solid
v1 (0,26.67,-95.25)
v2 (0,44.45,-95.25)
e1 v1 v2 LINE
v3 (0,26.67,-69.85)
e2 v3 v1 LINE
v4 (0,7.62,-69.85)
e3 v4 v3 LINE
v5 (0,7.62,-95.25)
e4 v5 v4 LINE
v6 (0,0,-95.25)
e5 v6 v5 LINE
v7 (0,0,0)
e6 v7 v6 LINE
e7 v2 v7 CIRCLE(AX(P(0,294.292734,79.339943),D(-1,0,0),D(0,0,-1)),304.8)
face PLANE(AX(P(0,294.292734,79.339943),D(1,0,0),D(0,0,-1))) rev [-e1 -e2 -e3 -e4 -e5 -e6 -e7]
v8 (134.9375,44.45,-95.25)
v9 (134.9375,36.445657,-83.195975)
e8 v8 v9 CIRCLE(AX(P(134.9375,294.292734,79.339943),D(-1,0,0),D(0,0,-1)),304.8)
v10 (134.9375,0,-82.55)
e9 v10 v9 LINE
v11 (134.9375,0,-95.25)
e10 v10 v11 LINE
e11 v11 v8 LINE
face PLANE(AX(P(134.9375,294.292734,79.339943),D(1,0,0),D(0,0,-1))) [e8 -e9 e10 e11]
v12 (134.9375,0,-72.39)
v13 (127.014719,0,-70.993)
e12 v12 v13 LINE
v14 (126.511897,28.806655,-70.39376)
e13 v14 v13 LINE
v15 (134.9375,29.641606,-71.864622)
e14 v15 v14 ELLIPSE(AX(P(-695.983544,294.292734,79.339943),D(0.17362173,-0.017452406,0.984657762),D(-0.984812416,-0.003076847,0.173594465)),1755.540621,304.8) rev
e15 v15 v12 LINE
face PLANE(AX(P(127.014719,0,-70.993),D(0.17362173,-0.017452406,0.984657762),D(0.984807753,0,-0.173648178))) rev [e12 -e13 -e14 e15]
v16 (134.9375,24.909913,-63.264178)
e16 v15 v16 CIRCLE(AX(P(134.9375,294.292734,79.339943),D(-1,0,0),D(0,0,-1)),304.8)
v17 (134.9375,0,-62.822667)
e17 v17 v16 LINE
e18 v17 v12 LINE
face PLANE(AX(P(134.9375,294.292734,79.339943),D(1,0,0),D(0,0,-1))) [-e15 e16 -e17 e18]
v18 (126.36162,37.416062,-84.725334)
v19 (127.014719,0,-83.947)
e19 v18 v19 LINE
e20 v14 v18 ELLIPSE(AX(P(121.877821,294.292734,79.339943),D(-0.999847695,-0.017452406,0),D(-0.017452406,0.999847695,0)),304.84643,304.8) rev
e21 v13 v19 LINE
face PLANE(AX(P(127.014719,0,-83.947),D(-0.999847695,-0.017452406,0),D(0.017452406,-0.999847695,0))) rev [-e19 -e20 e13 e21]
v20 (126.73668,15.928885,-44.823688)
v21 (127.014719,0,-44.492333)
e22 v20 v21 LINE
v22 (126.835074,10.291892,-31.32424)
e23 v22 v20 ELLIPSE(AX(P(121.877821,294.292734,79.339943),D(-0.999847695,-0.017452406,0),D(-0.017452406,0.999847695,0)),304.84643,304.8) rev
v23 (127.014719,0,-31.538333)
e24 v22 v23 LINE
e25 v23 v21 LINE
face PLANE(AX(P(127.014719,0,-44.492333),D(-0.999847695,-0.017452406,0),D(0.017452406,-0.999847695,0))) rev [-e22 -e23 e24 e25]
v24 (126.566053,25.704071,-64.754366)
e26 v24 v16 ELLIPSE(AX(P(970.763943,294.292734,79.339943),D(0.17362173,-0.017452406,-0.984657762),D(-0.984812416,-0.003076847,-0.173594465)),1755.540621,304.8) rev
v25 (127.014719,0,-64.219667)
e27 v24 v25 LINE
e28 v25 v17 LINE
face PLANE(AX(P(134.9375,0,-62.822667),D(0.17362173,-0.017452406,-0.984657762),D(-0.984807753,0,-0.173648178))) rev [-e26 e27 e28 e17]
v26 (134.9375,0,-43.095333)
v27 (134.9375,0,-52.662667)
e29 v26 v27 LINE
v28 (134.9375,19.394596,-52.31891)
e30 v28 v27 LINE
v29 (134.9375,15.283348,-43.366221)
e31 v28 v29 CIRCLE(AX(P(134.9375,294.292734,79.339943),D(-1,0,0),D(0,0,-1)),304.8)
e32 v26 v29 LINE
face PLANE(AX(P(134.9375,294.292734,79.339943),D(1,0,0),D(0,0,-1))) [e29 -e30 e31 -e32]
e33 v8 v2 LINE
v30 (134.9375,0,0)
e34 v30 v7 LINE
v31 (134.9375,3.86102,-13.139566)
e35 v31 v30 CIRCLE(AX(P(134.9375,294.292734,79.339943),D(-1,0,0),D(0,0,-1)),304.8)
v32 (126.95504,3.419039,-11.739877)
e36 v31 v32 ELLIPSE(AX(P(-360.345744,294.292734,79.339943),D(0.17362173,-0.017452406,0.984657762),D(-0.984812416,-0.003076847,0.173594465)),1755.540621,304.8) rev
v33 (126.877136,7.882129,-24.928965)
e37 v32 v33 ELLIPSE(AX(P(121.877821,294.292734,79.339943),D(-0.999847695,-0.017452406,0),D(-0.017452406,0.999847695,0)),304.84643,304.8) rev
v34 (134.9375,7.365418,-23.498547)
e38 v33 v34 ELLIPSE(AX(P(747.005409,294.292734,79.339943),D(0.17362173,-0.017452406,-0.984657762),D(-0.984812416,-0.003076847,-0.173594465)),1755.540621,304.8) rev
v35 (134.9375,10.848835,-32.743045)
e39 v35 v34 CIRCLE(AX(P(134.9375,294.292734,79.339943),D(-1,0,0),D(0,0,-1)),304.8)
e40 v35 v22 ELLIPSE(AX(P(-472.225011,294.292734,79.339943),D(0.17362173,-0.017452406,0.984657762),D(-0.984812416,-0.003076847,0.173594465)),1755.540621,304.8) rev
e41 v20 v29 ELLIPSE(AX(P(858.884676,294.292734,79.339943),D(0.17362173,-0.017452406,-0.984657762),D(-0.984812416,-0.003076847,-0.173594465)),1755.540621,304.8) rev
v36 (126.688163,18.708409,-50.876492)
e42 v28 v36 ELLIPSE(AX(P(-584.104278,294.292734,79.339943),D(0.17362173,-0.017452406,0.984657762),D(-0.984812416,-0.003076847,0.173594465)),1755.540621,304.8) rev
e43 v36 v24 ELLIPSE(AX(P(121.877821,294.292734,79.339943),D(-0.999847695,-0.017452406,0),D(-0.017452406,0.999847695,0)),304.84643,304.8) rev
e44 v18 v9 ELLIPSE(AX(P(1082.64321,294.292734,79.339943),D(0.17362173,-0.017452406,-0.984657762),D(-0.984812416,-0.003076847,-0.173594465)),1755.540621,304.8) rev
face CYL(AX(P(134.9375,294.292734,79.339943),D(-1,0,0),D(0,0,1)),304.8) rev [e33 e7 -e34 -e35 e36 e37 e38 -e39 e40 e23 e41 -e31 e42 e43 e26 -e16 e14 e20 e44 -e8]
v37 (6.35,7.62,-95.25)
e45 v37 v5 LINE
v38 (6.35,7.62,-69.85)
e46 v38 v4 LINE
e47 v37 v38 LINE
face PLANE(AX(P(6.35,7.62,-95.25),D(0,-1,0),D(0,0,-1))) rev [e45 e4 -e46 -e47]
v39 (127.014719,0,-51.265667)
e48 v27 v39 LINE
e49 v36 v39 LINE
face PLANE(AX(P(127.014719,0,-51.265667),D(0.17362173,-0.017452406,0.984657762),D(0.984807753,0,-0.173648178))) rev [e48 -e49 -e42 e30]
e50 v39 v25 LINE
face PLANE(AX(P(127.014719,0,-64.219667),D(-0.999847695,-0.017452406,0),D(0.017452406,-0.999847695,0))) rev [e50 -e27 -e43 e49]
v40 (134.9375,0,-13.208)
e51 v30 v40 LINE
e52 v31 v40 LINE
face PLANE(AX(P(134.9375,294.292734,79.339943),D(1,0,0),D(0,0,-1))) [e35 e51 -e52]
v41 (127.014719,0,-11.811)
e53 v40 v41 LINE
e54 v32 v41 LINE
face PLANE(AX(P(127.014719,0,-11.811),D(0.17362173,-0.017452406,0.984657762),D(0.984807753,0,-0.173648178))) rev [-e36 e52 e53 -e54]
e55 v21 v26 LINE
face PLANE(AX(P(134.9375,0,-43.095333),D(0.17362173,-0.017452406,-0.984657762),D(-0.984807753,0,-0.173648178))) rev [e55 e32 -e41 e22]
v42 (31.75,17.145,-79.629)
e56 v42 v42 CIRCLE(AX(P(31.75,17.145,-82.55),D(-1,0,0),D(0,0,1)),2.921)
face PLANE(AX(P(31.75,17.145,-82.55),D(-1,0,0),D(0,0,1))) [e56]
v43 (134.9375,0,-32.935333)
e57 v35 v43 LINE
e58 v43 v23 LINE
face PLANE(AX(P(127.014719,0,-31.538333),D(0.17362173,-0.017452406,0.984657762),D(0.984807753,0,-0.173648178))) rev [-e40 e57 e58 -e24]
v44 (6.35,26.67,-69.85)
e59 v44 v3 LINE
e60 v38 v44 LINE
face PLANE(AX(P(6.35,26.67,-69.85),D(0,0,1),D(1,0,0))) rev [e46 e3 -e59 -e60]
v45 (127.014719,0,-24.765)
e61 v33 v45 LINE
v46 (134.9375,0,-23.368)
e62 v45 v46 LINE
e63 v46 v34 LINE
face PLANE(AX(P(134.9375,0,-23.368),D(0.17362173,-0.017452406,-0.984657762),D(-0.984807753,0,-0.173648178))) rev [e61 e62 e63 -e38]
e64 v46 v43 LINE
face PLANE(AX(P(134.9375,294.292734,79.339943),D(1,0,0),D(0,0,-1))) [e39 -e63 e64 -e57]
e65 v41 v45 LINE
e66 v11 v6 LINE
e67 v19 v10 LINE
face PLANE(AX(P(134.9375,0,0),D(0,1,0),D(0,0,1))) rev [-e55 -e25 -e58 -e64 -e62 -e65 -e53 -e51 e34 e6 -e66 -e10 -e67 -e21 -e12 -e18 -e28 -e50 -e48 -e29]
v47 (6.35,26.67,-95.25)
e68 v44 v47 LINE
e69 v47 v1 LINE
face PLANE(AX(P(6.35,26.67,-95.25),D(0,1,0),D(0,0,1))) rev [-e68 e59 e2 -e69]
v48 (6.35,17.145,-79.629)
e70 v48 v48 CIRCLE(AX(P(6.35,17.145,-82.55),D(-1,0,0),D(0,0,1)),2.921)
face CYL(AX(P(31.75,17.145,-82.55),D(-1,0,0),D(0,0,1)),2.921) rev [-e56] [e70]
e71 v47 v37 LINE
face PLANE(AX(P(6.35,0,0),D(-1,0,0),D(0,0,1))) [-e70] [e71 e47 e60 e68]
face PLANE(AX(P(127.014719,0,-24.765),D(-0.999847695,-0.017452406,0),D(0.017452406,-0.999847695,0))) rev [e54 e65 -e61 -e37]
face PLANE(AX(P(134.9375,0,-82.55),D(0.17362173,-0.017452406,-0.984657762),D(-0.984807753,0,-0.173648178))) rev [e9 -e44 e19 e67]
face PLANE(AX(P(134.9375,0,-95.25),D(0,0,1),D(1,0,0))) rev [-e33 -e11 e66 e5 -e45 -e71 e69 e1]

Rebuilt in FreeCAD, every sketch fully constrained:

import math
import FreeCAD as App
import Part
import Sketcher

V = App.Vector
Q = App.Units.Quantity


def add_polygon(sketch, points):
    """Adds a closed chain of lines whose ends are joined by coincident constraints."""
    first, n = sketch.GeometryCount, len(points)
    for a, b in zip(points, points[1:] + points[:1]):
        sketch.addGeometry(Part.LineSegment(App.Vector(*a, 0), App.Vector(*b, 0)), False)
    for i in range(n):
        sketch.addConstraint(Sketcher.Constraint("Coincident", first + i, 2, first + (i + 1) % n, 1))

doc = App.newDocument("Part")
body = doc.addObject("PartDesign::Body", "Body")

sketch1 = body.newObject("Sketcher::SketchObject", "Sketch")
sketch1.AttachmentSupport = (doc.getObject("YZ_Plane"), [""])
sketch1.MapMode = "FlatFace"
sketch1.addGeometry([
    Part.LineSegment(V(0, 0, 0), V(0, -95.25, 0)),
    Part.LineSegment(V(0, -95.25, 0), V(44.45, -95.25, 0)),
    Part.ArcOfCircle(Part.Circle(V(294.292734, 79.339943, 0), V(0, 0, 1), 304.8), math.radians(-164.912038), math.radians(-145.054175)),
], False)
sketch1.addConstraint([
    Sketcher.Constraint("Coincident", 0, 2, 1, 1),
    Sketcher.Constraint("Coincident", 1, 2, 2, 2),
    Sketcher.Constraint("Coincident", 2, 1, 0, 1),
    Sketcher.Constraint("Vertical", 0),
    Sketcher.Constraint("Horizontal", 1),
    Sketcher.Constraint("Coincident", 2, 1, -1, 1),
    Sketcher.Constraint("Radius", 2, Q("12 in")),
    Sketcher.Constraint("DistanceX", 1, 1, 1, 2, Q("1.75 in")),
    Sketcher.Constraint("DistanceY", 0, 2, 0, 1, Q("3.75 in")),
])
pad1 = body.newObject("PartDesign::Pad", "Pad")
pad1.Profile = sketch1
pad1.Length = Q("5.3125 in")

sketch2 = body.newObject("Sketcher::SketchObject", "Sketch001")
sketch2.AttachmentSupport = (doc.getObject("YZ_Plane"), [""])
sketch2.MapMode = "FlatFace"
add_polygon(sketch2, [(26.67, -95.25), (7.62, -95.25), (7.62, -69.85), (26.67, -69.85)])
sketch2.addConstraint([
    Sketcher.Constraint("Horizontal", 0),
    Sketcher.Constraint("Vertical", 1),
    Sketcher.Constraint("Horizontal", 2),
    Sketcher.Constraint("Vertical", 3),
    Sketcher.Constraint("DistanceY", 1, 1, 1, 2, Q("1 in")),
    Sketcher.Constraint("DistanceX", 0, 2, 0, 1, Q("0.75 in")),
    Sketcher.Constraint("DistanceX", -1, 1, 0, 2, Q("0.3 in")),
    Sketcher.Constraint("DistanceY", 0, 2, -1, 1, Q("3.75 in")),
])
pocket1 = body.newObject("PartDesign::Pocket", "Pocket")
pocket1.Profile = sketch2
pocket1.Length = Q("0.25 in")
pocket1.Reversed = True

sketch3 = body.newObject("Sketcher::SketchObject", "Sketch002")
sketch3.AttachmentSupport = (doc.getObject("YZ_Plane"), [""])
sketch3.MapMode = "FlatFace"
sketch3.AttachmentOffset = App.Placement(V(0, 0, 0.25 * 25.4), App.Rotation())
sketch3.addGeometry(Part.Circle(V(17.145, -82.55, 0), V(0, 0, 1), 2.921), False)
sketch3.addConstraint([
    Sketcher.Constraint("Diameter", 0, Q("0.23 in")),
    Sketcher.Constraint("DistanceY", 0, 3, -1, 1, Q("3.25 in")),
    Sketcher.Constraint("DistanceX", -1, 1, 0, 3, Q("0.675 in")),
])
pocket2 = body.newObject("PartDesign::Pocket", "Pocket001")
pocket2.Profile = sketch3
pocket2.Length = Q("1 in")
pocket2.Reversed = True

sketch4 = body.newObject("Sketcher::SketchObject", "Sketch003")
sketch4.AttachmentSupport = (doc.getObject("XZ_Plane"), [""])
sketch4.MapMode = "FlatFace"
add_polygon(sketch4, [(134.9375, -82.55), (134.9375, -72.39), (127.014719, -70.993), (127.014719, -83.947)])
add_polygon(sketch4, [(134.9375, -62.822667), (134.9375, -52.662667), (127.014719, -51.265667), (127.014719, -64.219667)])
add_polygon(sketch4, [(134.9375, -43.095333), (134.9375, -32.935333), (127.014719, -31.538333), (127.014719, -44.492333)])
add_polygon(sketch4, [(134.9375, -23.368), (134.9375, -13.208), (127.014719, -11.811), (127.014719, -24.765)])
sketch4.addConstraint([
    Sketcher.Constraint("Vertical", 0),
    Sketcher.Constraint("Vertical", 2),
    Sketcher.Constraint("Vertical", 4),
    Sketcher.Constraint("Vertical", 6),
    Sketcher.Constraint("Vertical", 8),
    Sketcher.Constraint("Vertical", 10),
    Sketcher.Constraint("Vertical", 12),
    Sketcher.Constraint("Vertical", 14),
    Sketcher.Constraint("Parallel", 1, 5),
    Sketcher.Constraint("Parallel", 3, 7),
    Sketcher.Constraint("Parallel", 5, 9),
    Sketcher.Constraint("Parallel", 7, 11),
    Sketcher.Constraint("Parallel", 9, 13),
    Sketcher.Constraint("Parallel", 11, 15),
    Sketcher.Constraint("Vertical", 3, 2, 4, 2),
    Sketcher.Constraint("Vertical", 2, 2, 5, 2),
    Sketcher.Constraint("Vertical", 7, 2, 8, 2),
    Sketcher.Constraint("Vertical", 6, 2, 9, 2),
    Sketcher.Constraint("Vertical", 11, 2, 12, 2),
    Sketcher.Constraint("Vertical", 10, 2, 13, 2),
    Sketcher.Constraint("Equal", 0, 4),
    Sketcher.Constraint("Equal", 4, 8),
    Sketcher.Constraint("Equal", 8, 12),
    Sketcher.Constraint("Equal", 1, 3),
    Sketcher.Constraint("DistanceY", 0, 1, 0, 2, Q("0.4 in")),
    Sketcher.Constraint("Angle", 1, Q("170 deg")),
    Sketcher.Constraint("DistanceY", 2, 2, 2, 1, Q("0.51 in")),
    Sketcher.Constraint("DistanceY", 0, 2, -1, 1, Q("2.85 in")),
    Sketcher.Constraint("DistanceY", 12, 2, -1, 1, Q("0.52 in")),
    Sketcher.Constraint("DistanceX", -1, 1, 0, 2, Q("5.3125 in")),
    Sketcher.Constraint("DistanceY", 4, 2, -1, 1, 52.662667),
    Sketcher.Constraint("DistanceY", 8, 2, -1, 1, 32.935333),
])
pocket3 = body.newObject("PartDesign::Pocket", "Pocket002")
pocket3.Profile = sketch4
pocket3.Length = Q("1.5 in")
pocket3.TaperAngle = 1

doc.recompute()
